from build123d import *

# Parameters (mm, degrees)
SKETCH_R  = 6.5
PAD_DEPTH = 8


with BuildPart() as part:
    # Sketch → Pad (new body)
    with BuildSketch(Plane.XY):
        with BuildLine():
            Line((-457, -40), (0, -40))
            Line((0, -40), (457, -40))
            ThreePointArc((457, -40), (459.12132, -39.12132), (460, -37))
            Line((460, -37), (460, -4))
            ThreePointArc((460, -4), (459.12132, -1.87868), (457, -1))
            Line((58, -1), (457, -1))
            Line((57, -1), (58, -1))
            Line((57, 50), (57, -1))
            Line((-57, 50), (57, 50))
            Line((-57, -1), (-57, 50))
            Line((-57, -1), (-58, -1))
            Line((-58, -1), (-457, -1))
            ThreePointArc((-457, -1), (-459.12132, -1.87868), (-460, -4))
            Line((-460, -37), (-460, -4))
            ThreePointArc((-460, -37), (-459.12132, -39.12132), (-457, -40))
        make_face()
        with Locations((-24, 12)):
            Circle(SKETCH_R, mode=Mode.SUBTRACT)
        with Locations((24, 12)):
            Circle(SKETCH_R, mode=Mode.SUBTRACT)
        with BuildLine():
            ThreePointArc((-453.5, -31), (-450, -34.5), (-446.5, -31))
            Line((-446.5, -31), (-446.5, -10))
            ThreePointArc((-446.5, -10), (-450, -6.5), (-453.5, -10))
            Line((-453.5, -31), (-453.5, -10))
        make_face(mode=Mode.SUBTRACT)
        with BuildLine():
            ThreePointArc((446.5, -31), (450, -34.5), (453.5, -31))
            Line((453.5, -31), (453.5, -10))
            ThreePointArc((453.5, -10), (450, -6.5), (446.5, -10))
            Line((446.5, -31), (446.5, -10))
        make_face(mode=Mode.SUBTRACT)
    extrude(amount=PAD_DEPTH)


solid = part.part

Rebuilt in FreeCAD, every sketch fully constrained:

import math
import FreeCAD as App
import Part
import Sketcher
from FreeCAD import Vector
Q = App.Units.Quantity

doc = App.newDocument("Part")
body = doc.addObject("PartDesign::Body", "Body")

sketch1 = body.newObject("Sketcher::SketchObject", "Sketch")
sketch1.AttachmentSupport = (doc.getObject("XY_Plane"), [""])
sketch1.MapMode = "FlatFace"
sketch1.addGeometry([
    Part.LineSegment(Vector(-457, -40, 0), Vector(457, -40, 0)),
    Part.ArcOfCircle(Part.Circle(Vector(456.999999, -36.999999, 0), Vector(0, 0, 1), 3.000001), math.radians(-89.999978), math.radians(-0.000022)),
    Part.LineSegment(Vector(460, -37, 0), Vector(460, -4, 0)),
    Part.ArcOfCircle(Part.Circle(Vector(456.999999, -4.000001, 0), Vector(0, 0, 1), 3.000001), math.radians(0.000022), math.radians(89.999978)),
    Part.LineSegment(Vector(457, -1, 0), Vector(57, -1, 0)),
    Part.LineSegment(Vector(57, -1, 0), Vector(57, 50, 0)),
    Part.LineSegment(Vector(57, 50, 0), Vector(-57, 50, 0)),
    Part.LineSegment(Vector(-57, 50, 0), Vector(-57, -1, 0)),
    Part.LineSegment(Vector(-57, -1, 0), Vector(-457, -1, 0)),
    Part.ArcOfCircle(Part.Circle(Vector(-456.999999, -4.000001, 0), Vector(0, 0, 1), 3.000001), math.radians(90.000022), math.radians(179.999978)),
    Part.LineSegment(Vector(-460, -4, 0), Vector(-460, -37, 0)),
    Part.ArcOfCircle(Part.Circle(Vector(-456.999999, -36.999999, 0), Vector(0, 0, 1), 3.000001), math.radians(-179.999978), math.radians(-90.000022)),
    Part.ArcOfCircle(Part.Circle(Vector(-450, -31, 0), Vector(0, 0, 1), 3.5), math.radians(180), math.radians(360)),
    Part.LineSegment(Vector(-453.5, -31, 0), Vector(-453.5, -10, 0)),
    Part.ArcOfCircle(Part.Circle(Vector(-450, -10, 0), Vector(0, 0, 1), 3.5), math.radians(0), math.radians(180)),
    Part.LineSegment(Vector(-446.5, -10, 0), Vector(-446.5, -31, 0)),
    Part.ArcOfCircle(Part.Circle(Vector(450, -31, 0), Vector(0, 0, 1), 3.5), math.radians(180), math.radians(360)),
    Part.LineSegment(Vector(446.5, -31, 0), Vector(446.5, -10, 0)),
    Part.ArcOfCircle(Part.Circle(Vector(450, -10, 0), Vector(0, 0, 1), 3.5), math.radians(0), math.radians(180)),
    Part.LineSegment(Vector(453.5, -10, 0), Vector(453.5, -31, 0)),
    Part.Circle(Vector(-24, 12, 0), Vector(0, 0, 1), 6.5),
    Part.Circle(Vector(24, 12, 0), Vector(0, 0, 1), 6.5),
], False)
sketch1.addConstraint([
    Sketcher.Constraint("Tangent", 0, 2, 1, 1),
    Sketcher.Constraint("Tangent", 1, 2, 2, 1),
    Sketcher.Constraint("Tangent", 2, 2, 3, 1),
    Sketcher.Constraint("Tangent", 3, 2, 4, 1),
    Sketcher.Constraint("Coincident", 4, 2, 5, 1),
    Sketcher.Constraint("Coincident", 5, 2, 6, 1),
    Sketcher.Constraint("Coincident", 6, 2, 7, 1),
    Sketcher.Constraint("Coincident", 7, 2, 8, 1),
    Sketcher.Constraint("Tangent", 8, 2, 9, 1),
    Sketcher.Constraint("Tangent", 9, 2, 10, 1),
    Sketcher.Constraint("Tangent", 10, 2, 11, 1),
    Sketcher.Constraint("Tangent", 11, 2, 0, 1),
    Sketcher.Constraint("Tangent", 12, 1, 13, 1),
    Sketcher.Constraint("Tangent", 13, 2, 14, 2),
    Sketcher.Constraint("Tangent", 14, 1, 15, 1),
    Sketcher.Constraint("Tangent", 15, 2, 12, 2),
    Sketcher.Constraint("Tangent", 16, 1, 17, 1),
    Sketcher.Constraint("Tangent", 17, 2, 18, 2),
    Sketcher.Constraint("Tangent", 18, 1, 19, 1),
    Sketcher.Constraint("Tangent", 19, 2, 16, 2),
    Sketcher.Constraint("Horizontal", 0),
    Sketcher.Constraint("Vertical", 2),
    Sketcher.Constraint("Horizontal", 4),
    Sketcher.Constraint("Vertical", 5),
    Sketcher.Constraint("Horizontal", 6),
    Sketcher.Constraint("Vertical", 7),
    Sketcher.Constraint("Horizontal", 8),
    Sketcher.Constraint("Vertical", 10),
    Sketcher.Constraint("Vertical", 13),
    Sketcher.Constraint("Vertical", 15),
    Sketcher.Constraint("Vertical", 17),
    Sketcher.Constraint("Vertical", 19),
    Sketcher.Constraint("Equal", 1, 3),
    Sketcher.Constraint("Equal", 3, 9),
    Sketcher.Constraint("Equal", 9, 11),
    Sketcher.Constraint("Equal", 14, 16),
    Sketcher.Constraint("Equal", 20, 21),
    Sketcher.Constraint("Symmetric", 3, 3, 9, 3, -2),
    Sketcher.Constraint("Symmetric", 12, 3, 16, 3, -2),
    Sketcher.Constraint("Symmetric", 20, 3, 21, 3, -2),
    Sketcher.Constraint("Horizontal", 14, 3, 18, 3),
    Sketcher.Constraint("Equal", 4, 8),
    Sketcher.Constraint("Diameter", 20, Q("13 mm")),
    Sketcher.Constraint("Radius", 1, Q("3.000001 mm")),
    Sketcher.Constraint("Radius", 12, Q("3.5 mm")),
    Sketcher.Constraint("DistanceX", 0, 1, 0, 2, Q("914 mm")),
    Sketcher.Constraint("DistanceX", 4, 2, 4, 1, Q("400 mm")),
    Sketcher.Constraint("DistanceY", 2, 1, 2, 2, Q("33 mm")),
    Sketcher.Constraint("DistanceY", 5, 1, 5, 2, Q("51 mm")),
    Sketcher.Constraint("DistanceY", 13, 1, 13, 2, Q("21 mm")),
    Sketcher.Constraint("DistanceY", 1, 3, -1, 1, Q("36.999999 mm")),
    Sketcher.Constraint("DistanceX", 12, 3, -1, 1, Q("450 mm")),
    Sketcher.Constraint("DistanceY", 12, 3, -1, 1, Q("31 mm")),
    Sketcher.Constraint("DistanceX", 20, 3, -1, 1, Q("24 mm")),
    Sketcher.Constraint("DistanceY", -1, 1, 20, 3, Q("12 mm")),
])
pad1 = body.newObject("PartDesign::Pad", "Pad")
pad1.Profile = sketch1
pad1.Length = 8

doc.recompute()
